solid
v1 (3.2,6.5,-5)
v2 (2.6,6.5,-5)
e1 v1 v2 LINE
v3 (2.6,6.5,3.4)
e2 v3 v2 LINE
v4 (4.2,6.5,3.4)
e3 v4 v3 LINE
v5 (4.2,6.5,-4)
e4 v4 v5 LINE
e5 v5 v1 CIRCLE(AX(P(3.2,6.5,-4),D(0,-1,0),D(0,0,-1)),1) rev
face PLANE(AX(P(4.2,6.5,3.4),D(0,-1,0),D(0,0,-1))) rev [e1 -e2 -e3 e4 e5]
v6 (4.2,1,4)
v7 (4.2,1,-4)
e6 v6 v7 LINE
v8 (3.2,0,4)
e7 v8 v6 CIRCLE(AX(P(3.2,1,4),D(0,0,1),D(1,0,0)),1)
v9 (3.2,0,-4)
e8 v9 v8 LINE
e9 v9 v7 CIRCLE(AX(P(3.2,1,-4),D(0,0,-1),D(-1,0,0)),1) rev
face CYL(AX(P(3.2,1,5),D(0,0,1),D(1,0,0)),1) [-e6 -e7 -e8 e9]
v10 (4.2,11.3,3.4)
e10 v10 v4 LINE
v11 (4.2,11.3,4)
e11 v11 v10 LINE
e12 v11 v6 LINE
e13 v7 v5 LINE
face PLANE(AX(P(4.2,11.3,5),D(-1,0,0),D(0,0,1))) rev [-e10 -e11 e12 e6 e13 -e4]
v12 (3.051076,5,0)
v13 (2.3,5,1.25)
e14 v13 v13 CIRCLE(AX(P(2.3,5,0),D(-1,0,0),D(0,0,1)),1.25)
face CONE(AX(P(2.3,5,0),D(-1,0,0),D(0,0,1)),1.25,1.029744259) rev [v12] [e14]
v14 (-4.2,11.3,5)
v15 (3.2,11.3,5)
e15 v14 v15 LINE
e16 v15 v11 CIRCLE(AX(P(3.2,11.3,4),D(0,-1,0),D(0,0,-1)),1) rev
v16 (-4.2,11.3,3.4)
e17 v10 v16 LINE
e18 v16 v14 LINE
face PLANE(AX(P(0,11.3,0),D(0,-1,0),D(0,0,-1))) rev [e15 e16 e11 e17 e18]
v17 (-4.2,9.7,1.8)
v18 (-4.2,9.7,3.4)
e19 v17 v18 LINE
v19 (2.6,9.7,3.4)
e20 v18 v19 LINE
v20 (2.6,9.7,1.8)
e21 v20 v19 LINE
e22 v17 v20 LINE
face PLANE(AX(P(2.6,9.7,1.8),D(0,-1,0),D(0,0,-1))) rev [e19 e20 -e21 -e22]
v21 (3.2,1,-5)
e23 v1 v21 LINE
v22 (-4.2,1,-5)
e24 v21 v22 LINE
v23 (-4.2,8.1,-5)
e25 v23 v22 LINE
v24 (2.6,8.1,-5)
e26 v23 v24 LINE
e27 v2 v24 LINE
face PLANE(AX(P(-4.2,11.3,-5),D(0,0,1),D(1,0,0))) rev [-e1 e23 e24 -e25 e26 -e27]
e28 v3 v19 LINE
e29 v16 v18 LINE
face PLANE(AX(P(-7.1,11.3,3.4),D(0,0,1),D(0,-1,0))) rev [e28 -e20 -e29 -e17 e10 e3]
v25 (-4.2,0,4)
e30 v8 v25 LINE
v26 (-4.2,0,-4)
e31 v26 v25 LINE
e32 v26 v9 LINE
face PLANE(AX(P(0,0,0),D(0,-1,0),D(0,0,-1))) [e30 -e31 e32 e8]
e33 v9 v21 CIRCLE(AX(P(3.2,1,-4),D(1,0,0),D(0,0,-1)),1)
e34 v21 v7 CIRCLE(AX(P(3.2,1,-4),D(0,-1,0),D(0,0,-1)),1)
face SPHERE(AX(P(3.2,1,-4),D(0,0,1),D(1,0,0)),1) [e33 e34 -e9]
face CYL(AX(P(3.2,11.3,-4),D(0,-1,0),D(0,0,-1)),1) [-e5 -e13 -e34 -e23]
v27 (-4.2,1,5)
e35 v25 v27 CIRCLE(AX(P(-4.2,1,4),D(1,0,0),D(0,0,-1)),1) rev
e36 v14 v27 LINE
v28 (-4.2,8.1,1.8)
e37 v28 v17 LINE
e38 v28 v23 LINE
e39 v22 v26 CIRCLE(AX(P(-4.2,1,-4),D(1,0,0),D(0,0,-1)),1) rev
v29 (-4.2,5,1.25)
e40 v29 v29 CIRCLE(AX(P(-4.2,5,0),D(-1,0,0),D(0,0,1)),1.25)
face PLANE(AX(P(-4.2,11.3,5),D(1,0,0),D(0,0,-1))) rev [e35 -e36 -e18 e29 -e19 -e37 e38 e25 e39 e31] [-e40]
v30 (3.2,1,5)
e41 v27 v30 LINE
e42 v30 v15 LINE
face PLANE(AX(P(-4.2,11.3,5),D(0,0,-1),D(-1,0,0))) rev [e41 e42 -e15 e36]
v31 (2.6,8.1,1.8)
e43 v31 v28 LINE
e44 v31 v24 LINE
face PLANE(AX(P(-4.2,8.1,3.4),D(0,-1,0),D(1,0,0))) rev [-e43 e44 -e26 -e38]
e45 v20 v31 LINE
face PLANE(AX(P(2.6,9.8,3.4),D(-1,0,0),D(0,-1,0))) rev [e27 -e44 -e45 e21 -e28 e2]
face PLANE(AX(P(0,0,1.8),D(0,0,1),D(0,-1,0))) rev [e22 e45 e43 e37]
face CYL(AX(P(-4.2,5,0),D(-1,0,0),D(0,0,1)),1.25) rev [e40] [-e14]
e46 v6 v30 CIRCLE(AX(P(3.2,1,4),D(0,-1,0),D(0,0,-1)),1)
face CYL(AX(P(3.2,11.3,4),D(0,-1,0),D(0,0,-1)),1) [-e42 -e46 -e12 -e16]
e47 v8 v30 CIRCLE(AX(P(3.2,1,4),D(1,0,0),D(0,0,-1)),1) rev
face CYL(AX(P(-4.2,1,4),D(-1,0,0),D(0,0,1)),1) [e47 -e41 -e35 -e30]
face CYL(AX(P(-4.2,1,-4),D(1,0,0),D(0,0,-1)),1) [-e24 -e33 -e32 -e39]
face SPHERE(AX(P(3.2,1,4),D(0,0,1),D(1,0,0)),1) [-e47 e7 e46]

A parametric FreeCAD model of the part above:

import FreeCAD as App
import Part
import Sketcher
Q = App.Units.Quantity


def edges_at(feature, points):
    """Names of the edges that pass closest to the given points."""
    edges = feature.Shape.Edges
    near = lambda p: min(range(len(edges)), key=lambda i: edges[i].distToShape(Part.Vertex(*p))[0])
    return sorted({f"Edge{near(p) + 1}" for p in points})

doc = App.newDocument("Part")
body = doc.addObject("PartDesign::Body", "Body")

sketch1 = body.newObject("Sketcher::SketchObject", "Sketch")
sketch1.AttachmentSupport = (doc.getObject("XZ_Plane"), [""])
sketch1.MapMode = "FlatFace"
sketch1.addGeometry([
    Part.LineSegment(App.Vector(-4.2, -5, 0), App.Vector(-4.2, 5, 0)),
    Part.LineSegment(App.Vector(-4.2, 5, 0), App.Vector(4.2, 5, 0)),
    Part.LineSegment(App.Vector(4.2, 5, 0), App.Vector(4.2, -5, 0)),
    Part.LineSegment(App.Vector(4.2, -5, 0), App.Vector(-4.2, -5, 0)),
], False)
sketch1.addConstraint([
    Sketcher.Constraint("Coincident", 0, 2, 1, 1),
    Sketcher.Constraint("Coincident", 1, 2, 2, 1),
    Sketcher.Constraint("Coincident", 2, 2, 3, 1),
    Sketcher.Constraint("Coincident", 3, 2, 0, 1),
    Sketcher.Constraint("Vertical", 0),
    Sketcher.Constraint("Horizontal", 1),
    Sketcher.Constraint("Vertical", 2),
    Sketcher.Constraint("Horizontal", 3),
    Sketcher.Constraint("Symmetric", 0, 2, 2, 2, -1, 1),
    Sketcher.Constraint("DistanceY", 0, 1, 0, 2, Q("10 mm")),
    Sketcher.Constraint("DistanceX", 1, 1, 1, 2, Q("8.4 mm")),
])
pad1 = body.newObject("PartDesign::Pad", "Pad")
pad1.Profile = sketch1
pad1.Length = 11.3
pad1.Reversed = True

sketch2 = body.newObject("Sketcher::SketchObject", "Sketch001")
sketch2.AttachmentSupport = (doc.getObject("YZ_Plane"), [""])
sketch2.MapMode = "FlatFace"
sketch2.AttachmentOffset = App.Placement(App.Vector(0, 0, 4.2), App.Rotation())
sketch2.addGeometry([
    Part.LineSegment(App.Vector(11.3, 3.4, 0), App.Vector(9.8, 3.4, 0)),
    Part.LineSegment(App.Vector(9.8, 3.4, 0), App.Vector(9.8, -5, 0)),
    Part.LineSegment(App.Vector(9.8, -5, 0), App.Vector(11.3, -5, 0)),
    Part.LineSegment(App.Vector(11.3, -5, 0), App.Vector(11.3, 3.4, 0)),
], False)
sketch2.addConstraint([
    Sketcher.Constraint("Coincident", 0, 2, 1, 1),
    Sketcher.Constraint("Coincident", 1, 2, 2, 1),
    Sketcher.Constraint("Coincident", 2, 2, 3, 1),
    Sketcher.Constraint("Coincident", 3, 2, 0, 1),
    Sketcher.Constraint("Horizontal", 0),
    Sketcher.Constraint("Vertical", 1),
    Sketcher.Constraint("Horizontal", 2),
    Sketcher.Constraint("Vertical", 3),
    Sketcher.Constraint("DistanceX", 0, 2, 0, 1, Q("1.5 mm")),
    Sketcher.Constraint("DistanceY", 1, 2, 1, 1, Q("8.4 mm")),
    Sketcher.Constraint("DistanceY", 1, 2, -1, 1, Q("5 mm")),
    Sketcher.Constraint("DistanceX", -1, 1, 0, 2, Q("9.8 mm")),
])
pocket1 = body.newObject("PartDesign::Pocket", "Pocket")
pocket1.Profile = sketch2
pocket1.Length = 11.3

sketch3 = body.newObject("Sketcher::SketchObject", "Sketch002")
sketch3.AttachmentSupport = (doc.getObject("XY_Plane"), [""])
sketch3.MapMode = "FlatFace"
sketch3.AttachmentOffset = App.Placement(App.Vector(0, 0, -5), App.Rotation())
sketch3.addGeometry([
    Part.LineSegment(App.Vector(4.2, 9.8, 0), App.Vector(4.2, 6.5, 0)),
    Part.LineSegment(App.Vector(4.2, 6.5, 0), App.Vector(2.6, 6.5, 0)),
    Part.LineSegment(App.Vector(2.6, 6.5, 0), App.Vector(2.6, 9.8, 0)),
    Part.LineSegment(App.Vector(2.6, 9.8, 0), App.Vector(4.2, 9.8, 0)),
], False)
sketch3.addConstraint([
    Sketcher.Constraint("Coincident", 0, 2, 1, 1),
    Sketcher.Constraint("Coincident", 1, 2, 2, 1),
    Sketcher.Constraint("Coincident", 2, 2, 3, 1),
    Sketcher.Constraint("Coincident", 3, 2, 0, 1),
    Sketcher.Constraint("Vertical", 0),
    Sketcher.Constraint("Horizontal", 1),
    Sketcher.Constraint("Vertical", 2),
    Sketcher.Constraint("Horizontal", 3),
    Sketcher.Constraint("DistanceX", 1, 2, 1, 1, Q("1.6 mm")),
    Sketcher.Constraint("DistanceY", 0, 2, 0, 1, Q("3.3 mm")),
    Sketcher.Constraint("DistanceX", -1, 1, 0, 2, Q("4.2 mm")),
    Sketcher.Constraint("DistanceY", -1, 1, 0, 2, Q("6.5 mm")),
])
pocket2 = body.newObject("PartDesign::Pocket", "Pocket001")
pocket2.Profile = sketch3
pocket2.Length = 8.4
pocket2.Reversed = True

sketch4 = body.newObject("Sketcher::SketchObject", "Sketch003")
sketch4.AttachmentSupport = (doc.getObject("YZ_Plane"), [""])
sketch4.MapMode = "FlatFace"
sketch4.AttachmentOffset = App.Placement(App.Vector(0, 0, 2.6), App.Rotation())
sketch4.addGeometry([
    Part.LineSegment(App.Vector(9.8, 3.4, 0), App.Vector(8.1, 3.4, 0)),
    Part.LineSegment(App.Vector(8.1, 3.4, 0), App.Vector(8.1, -5, 0)),
    Part.LineSegment(App.Vector(8.1, -5, 0), App.Vector(9.8, -5, 0)),
    Part.LineSegment(App.Vector(9.8, -5, 0), App.Vector(9.8, 3.4, 0)),
], False)
sketch4.addConstraint([
    Sketcher.Constraint("Coincident", 0, 2, 1, 1),
    Sketcher.Constraint("Coincident", 1, 2, 2, 1),
    Sketcher.Constraint("Coincident", 2, 2, 3, 1),
    Sketcher.Constraint("Coincident", 3, 2, 0, 1),
    Sketcher.Constraint("Horizontal", 0),
    Sketcher.Constraint("Vertical", 1),
    Sketcher.Constraint("Horizontal", 2),
    Sketcher.Constraint("Vertical", 3),
    Sketcher.Constraint("DistanceX", 0, 2, 0, 1, Q("1.7 mm")),
    Sketcher.Constraint("DistanceY", 1, 2, 1, 1, Q("8.4 mm")),
    Sketcher.Constraint("DistanceY", 1, 2, -1, 1, Q("5 mm")),
    Sketcher.Constraint("DistanceX", -1, 1, 0, 2, Q("8.1 mm")),
])
pocket3 = body.newObject("PartDesign::Pocket", "Pocket002")
pocket3.Profile = sketch4
pocket3.Length = 6.8

sketch5 = body.newObject("Sketcher::SketchObject", "Sketch004")
sketch5.AttachmentSupport = (doc.getObject("XY_Plane"), [""])
sketch5.MapMode = "FlatFace"
sketch5.AttachmentOffset = App.Placement(App.Vector(0, 0, 3.4), App.Rotation())
sketch5.addGeometry([
    Part.LineSegment(App.Vector(2.6, 9.7, 0), App.Vector(2.6, 8.1, 0)),
    Part.LineSegment(App.Vector(2.6, 8.1, 0), App.Vector(-4.2, 8.1, 0)),
    Part.LineSegment(App.Vector(-4.2, 8.1, 0), App.Vector(-4.2, 9.7, 0)),
    Part.LineSegment(App.Vector(-4.2, 9.7, 0), App.Vector(2.6, 9.7, 0)),
], False)
sketch5.addConstraint([
    Sketcher.Constraint("Coincident", 0, 2, 1, 1),
    Sketcher.Constraint("Coincident", 1, 2, 2, 1),
    Sketcher.Constraint("Coincident", 2, 2, 3, 1),
    Sketcher.Constraint("Coincident", 3, 2, 0, 1),
    Sketcher.Constraint("Vertical", 0),
    Sketcher.Constraint("Horizontal", 1),
    Sketcher.Constraint("Vertical", 2),
    Sketcher.Constraint("Horizontal", 3),
    Sketcher.Constraint("DistanceX", 1, 2, 1, 1, Q("6.8 mm")),
    Sketcher.Constraint("DistanceY", 0, 2, 0, 1, Q("1.6 mm")),
    Sketcher.Constraint("DistanceX", -1, 1, 0, 2, Q("2.6 mm")),
    Sketcher.Constraint("DistanceY", -1, 1, 0, 2, Q("8.1 mm")),
])
pad2 = body.newObject("PartDesign::Pad", "Pad001")
pad2.Profile = sketch5
pad2.Length = 1.6
pad2.Reversed = True
doc.recompute()

fillet = body.newObject("PartDesign::Fillet", "Fillet")
fillet.Base = (pad2, edges_at(pad2, [
    (4.2, 3.25, -5),
    (0, 0, 5),
    (0, 0, -5),
    (4.2, 0, 0),
    (4.2, 5.65, 5),
]))
fillet.Radius = 1

sketch6 = body.newObject("Sketcher::SketchObject", "Sketch005")
sketch6.AttachmentSupport = (doc.getObject("YZ_Plane"), [""])
sketch6.MapMode = "FlatFace"
sketch6.AttachmentOffset = App.Placement(App.Vector(0, 0, -4.2), App.Rotation())
sketch6.addGeometry(Part.Circle(App.Vector(5, 0, 0), App.Vector(0, 0, 1), 1.25), False)
sketch6.addConstraint([
    Sketcher.Constraint("PointOnObject", 0, 3, -1),
    Sketcher.Constraint("Diameter", 0, Q("2.5 mm")),
    Sketcher.Constraint("DistanceX", -1, 1, 0, 3, Q("5 mm")),
])
doc.recompute()
hole = body.newObject("PartDesign::Hole", "Hole")
hole.Profile = sketch6
hole.ThreadType = "None"
hole.Diameter = 2.5
hole.DepthType = "Dimension"
hole.Depth = 6.5
hole.DrillPoint = "Angled"
hole.DrillPointAngle = 118
hole.Reversed = True

doc.recompute()
